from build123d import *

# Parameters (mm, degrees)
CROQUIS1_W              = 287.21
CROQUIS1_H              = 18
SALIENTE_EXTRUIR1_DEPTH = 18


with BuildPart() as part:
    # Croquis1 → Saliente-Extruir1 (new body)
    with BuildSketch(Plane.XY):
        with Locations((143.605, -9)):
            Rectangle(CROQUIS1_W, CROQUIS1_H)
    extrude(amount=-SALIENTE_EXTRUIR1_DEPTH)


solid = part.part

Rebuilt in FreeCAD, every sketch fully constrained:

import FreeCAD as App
import Part
import Sketcher

V = App.Vector


def add_polygon(sketch, points):
    """Adds a closed chain of lines whose ends are joined by coincident constraints."""
    first, n = sketch.GeometryCount, len(points)
    for a, b in zip(points, points[1:] + points[:1]):
        sketch.addGeometry(Part.LineSegment(App.Vector(*a, 0), App.Vector(*b, 0)), False)
    for i in range(n):
        sketch.addConstraint(Sketcher.Constraint("Coincident", first + i, 2, first + (i + 1) % n, 1))

doc = App.newDocument("Part")
body = doc.addObject("PartDesign::Body", "Body")

sketch1 = body.newObject("Sketcher::SketchObject", "Sketch")
sketch1.AttachmentSupport = (doc.getObject("XY_Plane"), [""])
sketch1.MapMode = "FlatFace"
add_polygon(sketch1, [(0, 0), (0, -18), (287.21, -18), (287.21, 0)])
sketch1.addConstraint([
    Sketcher.Constraint("Vertical", 0),
    Sketcher.Constraint("Horizontal", 1),
    Sketcher.Constraint("Vertical", 2),
    Sketcher.Constraint("Horizontal", 3),
    Sketcher.Constraint("Coincident", 3, 2, -1, 1),
    Sketcher.Constraint("DistanceY", 0, 2, 0, 1, 18.0),
    Sketcher.Constraint("DistanceX", 1, 1, 1, 2, 287.21),
])
pad1 = body.newObject("PartDesign::Pad", "Pad")
pad1.Profile = sketch1
pad1.Length = 18
pad1.Reversed = True

doc.recompute()
